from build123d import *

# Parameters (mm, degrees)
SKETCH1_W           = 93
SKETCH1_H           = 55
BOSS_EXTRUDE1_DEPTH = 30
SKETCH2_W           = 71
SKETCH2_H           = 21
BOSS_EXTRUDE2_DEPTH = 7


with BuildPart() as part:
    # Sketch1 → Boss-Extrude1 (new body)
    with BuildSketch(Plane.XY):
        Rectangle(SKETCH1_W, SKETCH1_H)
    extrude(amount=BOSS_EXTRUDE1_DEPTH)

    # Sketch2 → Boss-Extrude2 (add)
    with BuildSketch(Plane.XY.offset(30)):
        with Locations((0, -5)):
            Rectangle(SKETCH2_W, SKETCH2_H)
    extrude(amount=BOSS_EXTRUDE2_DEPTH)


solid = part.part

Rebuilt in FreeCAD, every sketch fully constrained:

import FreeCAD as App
import Part
import Sketcher
Q = App.Units.Quantity

doc = App.newDocument("Part")
body = doc.addObject("PartDesign::Body", "Body")

# Sketch on XY plane
sketch1 = body.newObject("Sketcher::SketchObject", "Sketch")
sketch1.AttachmentSupport = (doc.getObject("XY_Plane"), [""])
sketch1.MapMode = "FlatFace"
sketch1.addGeometry(Part.LineSegment(App.Vector(-46, 28, 0), App.Vector(-46, -28, 0)), False)
sketch1.addGeometry(Part.LineSegment(App.Vector(-46, -28, 0), App.Vector(46, -28, 0)), False)
sketch1.addGeometry(Part.LineSegment(App.Vector(46, -28, 0), App.Vector(46, 28, 0)), False)
sketch1.addGeometry(Part.LineSegment(App.Vector(46, 28, 0), App.Vector(-46, 28, 0)), False)
sketch1.addConstraint(Sketcher.Constraint("Coincident", 0, 2, 1, 1))
sketch1.addConstraint(Sketcher.Constraint("Coincident", 1, 2, 2, 1))
sketch1.addConstraint(Sketcher.Constraint("Coincident", 2, 2, 3, 1))
sketch1.addConstraint(Sketcher.Constraint("Coincident", 3, 2, 0, 1))
sketch1.addConstraint(Sketcher.Constraint("Vertical", 0))
sketch1.addConstraint(Sketcher.Constraint("Horizontal", 1))
sketch1.addConstraint(Sketcher.Constraint("Vertical", 2))
sketch1.addConstraint(Sketcher.Constraint("Horizontal", 3))
sketch1.addConstraint(Sketcher.Constraint("Symmetric", 0, 2, 2, 2, -1, 1))
sketch1.addConstraint(Sketcher.Constraint("DistanceX", 1, 1, 1, 2, Q("93 mm")))
sketch1.addConstraint(Sketcher.Constraint("DistanceY", 0, 2, 0, 1, Q("55 mm")))
pad1 = body.newObject("PartDesign::Pad", "Pad")
pad1.Profile = sketch1
pad1.Length = 30

# Sketch on XY plane
sketch2 = body.newObject("Sketcher::SketchObject", "Sketch001")
sketch2.AttachmentSupport = (doc.getObject("XY_Plane"), [""])
sketch2.MapMode = "FlatFace"
sketch2.AttachmentOffset = App.Placement(App.Vector(0, 0, 30), App.Rotation())
sketch2.addGeometry(Part.LineSegment(App.Vector(-36, 6, 0), App.Vector(-36, -16, 0)), False)
sketch2.addGeometry(Part.LineSegment(App.Vector(-36, -16, 0), App.Vector(36, -16, 0)), False)
sketch2.addGeometry(Part.LineSegment(App.Vector(36, -16, 0), App.Vector(36, 6, 0)), False)
sketch2.addGeometry(Part.LineSegment(App.Vector(36, 6, 0), App.Vector(-36, 6, 0)), False)
sketch2.addConstraint(Sketcher.Constraint("Coincident", 0, 2, 1, 1))
sketch2.addConstraint(Sketcher.Constraint("Coincident", 1, 2, 2, 1))
sketch2.addConstraint(Sketcher.Constraint("Coincident", 2, 2, 3, 1))
sketch2.addConstraint(Sketcher.Constraint("Coincident", 3, 2, 0, 1))
sketch2.addConstraint(Sketcher.Constraint("Vertical", 0))
sketch2.addConstraint(Sketcher.Constraint("Horizontal", 1))
sketch2.addConstraint(Sketcher.Constraint("Vertical", 2))
sketch2.addConstraint(Sketcher.Constraint("Horizontal", 3))
sketch2.addConstraint(Sketcher.Constraint("DistanceX", 1, 1, 1, 2, Q("71 mm")))
sketch2.addConstraint(Sketcher.Constraint("DistanceY", 0, 2, 0, 1, Q("21 mm")))
sketch2.addConstraint(Sketcher.Constraint("DistanceX", 0, 2, -1, 1, Q("35.5 mm")))
sketch2.addConstraint(Sketcher.Constraint("DistanceY", 0, 2, -1, 1, Q("15.5 mm")))
pad2 = body.newObject("PartDesign::Pad", "Pad001")
pad2.Profile = sketch2
pad2.Length = 7

doc.recompute()
